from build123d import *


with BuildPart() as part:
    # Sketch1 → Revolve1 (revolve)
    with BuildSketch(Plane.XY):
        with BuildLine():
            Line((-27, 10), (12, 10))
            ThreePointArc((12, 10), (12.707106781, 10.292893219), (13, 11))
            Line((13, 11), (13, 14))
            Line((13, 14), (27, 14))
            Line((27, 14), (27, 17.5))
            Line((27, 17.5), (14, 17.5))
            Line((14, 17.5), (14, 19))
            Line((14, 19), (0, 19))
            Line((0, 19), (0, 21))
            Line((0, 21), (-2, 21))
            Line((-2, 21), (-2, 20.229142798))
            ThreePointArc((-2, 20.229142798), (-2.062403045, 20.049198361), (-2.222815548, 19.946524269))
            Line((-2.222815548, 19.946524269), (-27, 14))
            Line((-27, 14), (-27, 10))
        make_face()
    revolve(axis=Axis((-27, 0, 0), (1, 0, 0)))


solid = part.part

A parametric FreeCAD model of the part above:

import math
import FreeCAD as App
import Part
import Sketcher
Q = App.Units.Quantity

doc = App.newDocument("Part")
body = doc.addObject("PartDesign::Body", "Body")

sketch1 = body.newObject("Sketcher::SketchObject", "Sketch")
sketch1.AttachmentSupport = (doc.getObject("XY_Plane"), [""])
sketch1.MapMode = "FlatFace"
sketch1.addGeometry([
    Part.LineSegment(App.Vector(-27, 10, 0), App.Vector(12, 10, 0)),
    Part.ArcOfCircle(Part.Circle(App.Vector(12, 11, 0), App.Vector(0, 0, 1), 1), math.radians(-90), math.radians(0)),
    Part.LineSegment(App.Vector(13, 11, 0), App.Vector(13, 14, 0)),
    Part.LineSegment(App.Vector(13, 14, 0), App.Vector(27, 14, 0)),
    Part.LineSegment(App.Vector(27, 14, 0), App.Vector(27, 17.5, 0)),
    Part.LineSegment(App.Vector(27, 17.5, 0), App.Vector(14, 17.5, 0)),
    Part.LineSegment(App.Vector(14, 17.5, 0), App.Vector(14, 19, 0)),
    Part.LineSegment(App.Vector(14, 19, 0), App.Vector(0, 19, 0)),
    Part.LineSegment(App.Vector(0, 19, 0), App.Vector(0, 21, 0)),
    Part.LineSegment(App.Vector(0, 21, 0), App.Vector(-2, 21, 0)),
    Part.LineSegment(App.Vector(-2, 21, 0), App.Vector(-2, 20.23, 0)),
    Part.ArcOfCircle(Part.Circle(App.Vector(-2.29, 20.23, 0), App.Vector(0, 0, 1), 0.29), math.radians(-77), math.radians(0)),
    Part.LineSegment(App.Vector(-2.22, 19.95, 0), App.Vector(-27, 14, 0)),
    Part.LineSegment(App.Vector(-27, 14, 0), App.Vector(-27, 10, 0)),
], False)
sketch1.addConstraint([
    Sketcher.Constraint("Tangent", 0, 2, 1, 1),
    Sketcher.Constraint("Tangent", 1, 2, 2, 1),
    Sketcher.Constraint("Coincident", 2, 2, 3, 1),
    Sketcher.Constraint("Coincident", 3, 2, 4, 1),
    Sketcher.Constraint("Coincident", 4, 2, 5, 1),
    Sketcher.Constraint("Coincident", 5, 2, 6, 1),
    Sketcher.Constraint("Coincident", 6, 2, 7, 1),
    Sketcher.Constraint("Coincident", 7, 2, 8, 1),
    Sketcher.Constraint("Coincident", 8, 2, 9, 1),
    Sketcher.Constraint("Coincident", 9, 2, 10, 1),
    Sketcher.Constraint("Tangent", 10, 2, 11, 2),
    Sketcher.Constraint("Tangent", 11, 1, 12, 1),
    Sketcher.Constraint("Coincident", 12, 2, 13, 1),
    Sketcher.Constraint("Coincident", 13, 2, 0, 1),
    Sketcher.Constraint("Horizontal", 0),
    Sketcher.Constraint("Vertical", 2),
    Sketcher.Constraint("Horizontal", 3),
    Sketcher.Constraint("Vertical", 4),
    Sketcher.Constraint("Horizontal", 5),
    Sketcher.Constraint("Vertical", 6),
    Sketcher.Constraint("Horizontal", 7),
    Sketcher.Constraint("Vertical", 8),
    Sketcher.Constraint("Horizontal", 9),
    Sketcher.Constraint("Vertical", 10),
    Sketcher.Constraint("Vertical", 13),
    Sketcher.Constraint("Symmetric", 3, 2, 12, 2, -2),
    Sketcher.Constraint("PointOnObject", 7, 2, -2),
    Sketcher.Constraint("Equal", 3, 7),
    Sketcher.Constraint("Equal", 9, 8),
    Sketcher.Constraint("Radius", 1, Q("1 mm")),
    Sketcher.Constraint("DistanceX", 0, 1, 0, 2, Q("39 mm")),
    Sketcher.Constraint("DistanceX", 3, 1, 3, 2, Q("14 mm")),
    Sketcher.Constraint("DistanceX", 9, 2, 9, 1, Q("2 mm")),
    Sketcher.Constraint("DistanceY", 2, 1, 2, 2, Q("3 mm")),
    Sketcher.Constraint("DistanceY", 4, 1, 4, 2, Q("3.5 mm")),
    Sketcher.Constraint("DistanceY", 6, 1, 6, 2, Q("1.5 mm")),
    Sketcher.Constraint("DistanceY", -1, 1, 1, 3, Q("11 mm")),
    Sketcher.Constraint("Radius", 11, Q("0.290644 mm")),
    Sketcher.Constraint("DistanceY", 10, 2, 10, 1, Q("0.770857 mm")),
])
revolution = body.newObject("PartDesign::Revolution", "Revolution")
revolution.Profile = sketch1
revolution.ReferenceAxis = (sketch1, ["H_Axis"])
revolution.Angle = 360

doc.recompute()
